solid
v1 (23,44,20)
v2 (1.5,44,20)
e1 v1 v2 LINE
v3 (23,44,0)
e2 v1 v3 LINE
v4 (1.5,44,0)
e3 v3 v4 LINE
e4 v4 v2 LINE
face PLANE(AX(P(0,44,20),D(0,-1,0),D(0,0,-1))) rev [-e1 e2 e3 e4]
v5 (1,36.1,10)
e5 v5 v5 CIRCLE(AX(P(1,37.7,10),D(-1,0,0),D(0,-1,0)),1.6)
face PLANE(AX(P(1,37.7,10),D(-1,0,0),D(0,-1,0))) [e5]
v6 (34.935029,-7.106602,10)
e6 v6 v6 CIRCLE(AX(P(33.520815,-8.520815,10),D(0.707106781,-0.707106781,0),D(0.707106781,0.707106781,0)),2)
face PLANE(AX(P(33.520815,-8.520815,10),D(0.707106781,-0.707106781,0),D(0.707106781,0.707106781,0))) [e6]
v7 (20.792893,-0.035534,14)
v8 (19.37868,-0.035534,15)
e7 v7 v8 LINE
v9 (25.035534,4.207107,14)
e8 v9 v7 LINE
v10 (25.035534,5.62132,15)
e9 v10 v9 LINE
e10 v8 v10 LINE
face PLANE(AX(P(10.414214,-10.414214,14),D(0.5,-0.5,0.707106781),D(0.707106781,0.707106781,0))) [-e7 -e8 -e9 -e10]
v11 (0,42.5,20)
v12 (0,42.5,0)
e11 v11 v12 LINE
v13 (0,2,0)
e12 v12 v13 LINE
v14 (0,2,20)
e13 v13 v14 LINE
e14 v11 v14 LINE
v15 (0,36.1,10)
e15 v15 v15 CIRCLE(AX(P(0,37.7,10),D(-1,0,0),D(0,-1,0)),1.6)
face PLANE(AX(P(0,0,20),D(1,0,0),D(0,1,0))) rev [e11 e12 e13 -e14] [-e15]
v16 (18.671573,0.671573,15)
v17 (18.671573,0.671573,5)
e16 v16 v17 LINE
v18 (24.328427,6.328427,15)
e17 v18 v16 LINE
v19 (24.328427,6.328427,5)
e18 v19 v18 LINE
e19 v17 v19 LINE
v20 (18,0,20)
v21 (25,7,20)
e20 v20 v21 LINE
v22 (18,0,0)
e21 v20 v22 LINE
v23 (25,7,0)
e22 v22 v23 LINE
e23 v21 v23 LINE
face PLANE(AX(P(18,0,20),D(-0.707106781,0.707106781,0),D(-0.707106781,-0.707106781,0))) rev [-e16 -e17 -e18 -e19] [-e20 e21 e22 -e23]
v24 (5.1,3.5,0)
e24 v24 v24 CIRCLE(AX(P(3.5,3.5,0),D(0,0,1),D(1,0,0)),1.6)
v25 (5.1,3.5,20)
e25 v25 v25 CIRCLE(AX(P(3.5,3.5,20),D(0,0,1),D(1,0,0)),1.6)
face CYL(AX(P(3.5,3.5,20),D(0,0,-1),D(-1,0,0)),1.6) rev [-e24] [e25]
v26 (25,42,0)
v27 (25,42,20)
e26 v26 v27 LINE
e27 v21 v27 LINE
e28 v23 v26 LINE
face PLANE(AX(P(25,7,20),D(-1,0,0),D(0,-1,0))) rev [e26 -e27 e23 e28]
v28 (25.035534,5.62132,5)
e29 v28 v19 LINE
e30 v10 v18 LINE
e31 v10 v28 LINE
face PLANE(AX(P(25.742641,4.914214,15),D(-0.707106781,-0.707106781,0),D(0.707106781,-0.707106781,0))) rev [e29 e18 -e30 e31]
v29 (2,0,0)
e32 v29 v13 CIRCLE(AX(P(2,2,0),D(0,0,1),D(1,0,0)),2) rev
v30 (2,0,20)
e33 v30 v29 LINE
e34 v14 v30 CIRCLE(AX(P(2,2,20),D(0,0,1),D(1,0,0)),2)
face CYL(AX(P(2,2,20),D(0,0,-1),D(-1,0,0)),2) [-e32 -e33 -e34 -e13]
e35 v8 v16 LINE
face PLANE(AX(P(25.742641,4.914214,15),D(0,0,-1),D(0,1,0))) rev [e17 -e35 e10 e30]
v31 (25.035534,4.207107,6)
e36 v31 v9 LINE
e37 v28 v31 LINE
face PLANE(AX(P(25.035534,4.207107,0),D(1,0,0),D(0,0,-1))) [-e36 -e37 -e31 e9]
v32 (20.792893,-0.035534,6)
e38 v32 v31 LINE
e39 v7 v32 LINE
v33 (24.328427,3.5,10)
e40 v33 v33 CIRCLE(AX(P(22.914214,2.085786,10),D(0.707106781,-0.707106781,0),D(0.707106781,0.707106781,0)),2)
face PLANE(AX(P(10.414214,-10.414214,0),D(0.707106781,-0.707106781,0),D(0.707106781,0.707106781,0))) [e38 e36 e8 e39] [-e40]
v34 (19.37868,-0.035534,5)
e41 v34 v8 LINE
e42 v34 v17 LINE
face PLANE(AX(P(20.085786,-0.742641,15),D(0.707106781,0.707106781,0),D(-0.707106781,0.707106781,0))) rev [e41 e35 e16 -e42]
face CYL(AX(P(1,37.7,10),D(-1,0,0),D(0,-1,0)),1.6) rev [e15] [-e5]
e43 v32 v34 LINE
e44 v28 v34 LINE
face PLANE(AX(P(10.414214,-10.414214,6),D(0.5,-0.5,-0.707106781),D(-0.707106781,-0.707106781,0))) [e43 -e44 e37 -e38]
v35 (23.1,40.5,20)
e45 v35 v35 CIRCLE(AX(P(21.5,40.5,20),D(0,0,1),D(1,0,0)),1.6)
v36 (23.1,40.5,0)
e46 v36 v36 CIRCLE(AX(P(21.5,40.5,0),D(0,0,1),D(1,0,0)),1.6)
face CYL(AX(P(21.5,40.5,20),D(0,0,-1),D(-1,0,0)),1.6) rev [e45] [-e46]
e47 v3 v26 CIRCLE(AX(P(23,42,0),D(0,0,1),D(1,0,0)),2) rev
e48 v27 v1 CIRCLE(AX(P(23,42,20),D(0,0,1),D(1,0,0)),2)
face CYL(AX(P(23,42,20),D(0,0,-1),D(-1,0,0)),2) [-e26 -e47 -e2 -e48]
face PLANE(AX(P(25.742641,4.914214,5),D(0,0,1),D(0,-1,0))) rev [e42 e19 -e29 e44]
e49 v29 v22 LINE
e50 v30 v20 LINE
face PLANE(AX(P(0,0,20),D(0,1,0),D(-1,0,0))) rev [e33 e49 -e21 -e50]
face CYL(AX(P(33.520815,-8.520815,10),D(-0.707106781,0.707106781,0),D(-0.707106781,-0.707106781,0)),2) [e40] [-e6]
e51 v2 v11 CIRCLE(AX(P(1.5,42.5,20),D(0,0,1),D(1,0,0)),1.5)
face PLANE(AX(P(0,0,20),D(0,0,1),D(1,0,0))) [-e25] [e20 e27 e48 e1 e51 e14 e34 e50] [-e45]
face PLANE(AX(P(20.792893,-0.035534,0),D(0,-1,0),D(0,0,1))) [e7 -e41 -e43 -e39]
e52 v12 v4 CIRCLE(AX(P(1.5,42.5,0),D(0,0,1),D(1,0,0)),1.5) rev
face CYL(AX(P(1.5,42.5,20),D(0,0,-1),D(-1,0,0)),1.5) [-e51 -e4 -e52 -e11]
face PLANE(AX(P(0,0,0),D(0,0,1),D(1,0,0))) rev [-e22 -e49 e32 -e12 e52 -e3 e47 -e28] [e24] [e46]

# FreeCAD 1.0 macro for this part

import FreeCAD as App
import Part
import Sketcher
from FreeCAD import Vector
Q = App.Units.Quantity


def edges_at(feature, points):
    """Names of the edges that pass closest to the given points."""
    edges = feature.Shape.Edges
    near = lambda p: min(range(len(edges)), key=lambda i: edges[i].distToShape(Part.Vertex(*p))[0])
    return sorted({f"Edge{near(p) + 1}" for p in points})

doc = App.newDocument("Part")
params = doc.addObject("Spreadsheet::Sheet", "Params")
for row, (alias, value) in enumerate([
    ("sketch1_diameter", "3.2 mm"),
    ("sketch1_width", "18 mm"),
    ("sketch1_width2", "25 mm"),
    ("sketch1_height", "44 mm"),
    ("sketch1_height2", "37 mm"),
    ("pad1_length", "20 mm"),
    ("sketch2_diameter", "3.2 mm"),
    ("pocket1_length", "1 mm"),
    ("fillet_radius", "1.5 mm"),
    ("fillet2_radius", "2 mm"),
    ("sketch3_width", "10 mm"),
    ("sketch3_height", "8 mm"),
    ("pad2_length", "2 mm"),
    ("chamfer_size", "1 mm"),
    ("sketch4_diameter", "4 mm"),
    ("pad3_length", "15 mm"),
], start=1):
    params.set(f"A{row}", alias)
    params.set(f"B{row}", "=" + value)
    params.setAlias(f"B{row}", alias)

body = doc.addObject("PartDesign::Body", "Body")

sketch1 = body.newObject("Sketcher::SketchObject", "Sketch")
sketch1.AttachmentSupport = (doc.getObject("XY_Plane"), [""])
sketch1.MapMode = "FlatFace"
sketch1.addGeometry(Part.LineSegment(Vector(0, 44, 0), Vector(0, 0, 0)), False)
sketch1.addGeometry(Part.LineSegment(Vector(0, 0, 0), Vector(18, 0, 0)), False)
sketch1.addGeometry(Part.LineSegment(Vector(18, 0, 0), Vector(25, 7, 0)), False)
sketch1.addGeometry(Part.LineSegment(Vector(25, 7, 0), Vector(25, 44, 0)), False)
sketch1.addGeometry(Part.LineSegment(Vector(25, 44, 0), Vector(0, 44, 0)), False)
sketch1.addGeometry(Part.Circle(Vector(3.5, 3.5, 0), Vector(0, 0, 1), 1.6), False)
sketch1.addGeometry(Part.Circle(Vector(21.5, 40.5, 0), Vector(0, 0, 1), 1.6), False)
sketch1.addConstraint(Sketcher.Constraint("Coincident", 0, 2, 1, 1))
sketch1.addConstraint(Sketcher.Constraint("Coincident", 1, 2, 2, 1))
sketch1.addConstraint(Sketcher.Constraint("Coincident", 2, 2, 3, 1))
sketch1.addConstraint(Sketcher.Constraint("Coincident", 3, 2, 4, 1))
sketch1.addConstraint(Sketcher.Constraint("Coincident", 4, 2, 0, 1))
sketch1.addConstraint(Sketcher.Constraint("Vertical", 0))
sketch1.addConstraint(Sketcher.Constraint("Horizontal", 1))
sketch1.addConstraint(Sketcher.Constraint("Vertical", 3))
sketch1.addConstraint(Sketcher.Constraint("Horizontal", 4))
sketch1.addConstraint(Sketcher.Constraint("Coincident", 0, 2, -1, 1))
sketch1.addConstraint(Sketcher.Constraint("Equal", 5, 6))
sketch1.addConstraint(Sketcher.Constraint("Diameter", 5, Q("3.2 mm")))
sketch1.addConstraint(Sketcher.Constraint("DistanceX", 1, 1, 1, 2, Q("18 mm")))
sketch1.addConstraint(Sketcher.Constraint("DistanceX", 4, 2, 4, 1, Q("25 mm")))
sketch1.addConstraint(Sketcher.Constraint("DistanceY", 0, 2, 0, 1, Q("44 mm")))
sketch1.addConstraint(Sketcher.Constraint("DistanceY", 3, 1, 3, 2, Q("37 mm")))
sketch1.addConstraint(Sketcher.Constraint("DistanceX", 5, 3, 6, 3, Q("18 mm")))
sketch1.addConstraint(Sketcher.Constraint("DistanceY", 5, 3, 6, 3, Q("37 mm")))
sketch1.addConstraint(Sketcher.Constraint("DistanceX", -1, 1, 5, 3, Q("3.5 mm")))
sketch1.addConstraint(Sketcher.Constraint("DistanceY", -1, 1, 5, 3, Q("3.5 mm")))
sketch1.setExpression("Constraints[11]", "Params.sketch1_diameter")
sketch1.setExpression("Constraints[12]", "Params.sketch1_width")
sketch1.setExpression("Constraints[13]", "Params.sketch1_width2")
sketch1.setExpression("Constraints[14]", "Params.sketch1_height")
sketch1.setExpression("Constraints[15]", "Params.sketch1_height2")
pad1 = body.newObject("PartDesign::Pad", "Pad")
pad1.Profile = sketch1
pad1.setExpression("Length", "Params.pad1_length")

sketch2 = body.newObject("Sketcher::SketchObject", "Sketch001")
sketch2.AttachmentSupport = (doc.getObject("YZ_Plane"), [""])
sketch2.MapMode = "FlatFace"
sketch2.addGeometry(Part.Circle(Vector(37.7, 10, 0), Vector(0, 0, 1), 1.6), False)
sketch2.addConstraint(Sketcher.Constraint("Diameter", 0, Q("3.2 mm")))
sketch2.addConstraint(Sketcher.Constraint("DistanceY", -1, 1, 0, 3, Q("10 mm")))
sketch2.addConstraint(Sketcher.Constraint("DistanceX", -1, 1, 0, 3, Q("37.7 mm")))
sketch2.setExpression("Constraints[0]", "Params.sketch2_diameter")
pocket1 = body.newObject("PartDesign::Pocket", "Pocket")
pocket1.Profile = sketch2
pocket1.setExpression("Length", "Params.pocket1_length")
pocket1.Reversed = True
doc.recompute()

fillet = body.newObject("PartDesign::Fillet", "Fillet")
fillet.Base = (pocket1, edges_at(pocket1, [(0, 44, 10)]))
fillet.setExpression("Radius", "Params.fillet_radius")
doc.recompute()

fillet2 = body.newObject("PartDesign::Fillet", "Fillet001")
fillet2.Base = (fillet, edges_at(fillet, [(0, 0, 10), (25, 44, 10)]))
fillet2.setExpression("Radius", "Params.fillet2_radius")

sketch3 = body.newObject("Sketcher::SketchObject", "Sketch002")
sketch3.Placement = App.Placement(Vector(9, -9, 0), App.Rotation(Vector(0, 0, -1), Vector(0.707106781, 0.707106781, 0), Vector(0.707106781, -0.707106781, 0), "ZXY"))
sketch3.addGeometry(Part.LineSegment(Vector(-15, 21.67767, 0), Vector(-15, 13.67767, 0)), False)
sketch3.addGeometry(Part.LineSegment(Vector(-15, 13.67767, 0), Vector(-5, 13.67767, 0)), False)
sketch3.addGeometry(Part.LineSegment(Vector(-5, 13.67767, 0), Vector(-5, 21.67767, 0)), False)
sketch3.addGeometry(Part.LineSegment(Vector(-5, 21.67767, 0), Vector(-15, 21.67767, 0)), False)
sketch3.addConstraint(Sketcher.Constraint("Coincident", 0, 2, 1, 1))
sketch3.addConstraint(Sketcher.Constraint("Coincident", 1, 2, 2, 1))
sketch3.addConstraint(Sketcher.Constraint("Coincident", 2, 2, 3, 1))
sketch3.addConstraint(Sketcher.Constraint("Coincident", 3, 2, 0, 1))
sketch3.addConstraint(Sketcher.Constraint("Vertical", 0))
sketch3.addConstraint(Sketcher.Constraint("Horizontal", 1))
sketch3.addConstraint(Sketcher.Constraint("Vertical", 2))
sketch3.addConstraint(Sketcher.Constraint("Horizontal", 3))
sketch3.addConstraint(Sketcher.Constraint("DistanceX", 1, 1, 1, 2, Q("10 mm")))
sketch3.addConstraint(Sketcher.Constraint("DistanceY", 0, 2, 0, 1, Q("8 mm")))
sketch3.addConstraint(Sketcher.Constraint("DistanceX", 0, 2, -1, 1, Q("15 mm")))
sketch3.addConstraint(Sketcher.Constraint("DistanceY", -1, 1, 0, 2, Q("13.67767 mm")))
sketch3.setExpression("Constraints[8]", "Params.sketch3_width")
sketch3.setExpression("Constraints[9]", "Params.sketch3_height")
pad2 = body.newObject("PartDesign::Pad", "Pad001")
pad2.Profile = sketch3
pad2.setExpression("Length", "Params.pad2_length")
doc.recompute()

chamfer = body.newObject("PartDesign::Chamfer", "Chamfer")
chamfer.Base = (pad2, edges_at(pad2, [
    (22.914, 2.086, 5),
    (25.743, 4.914, 10),
    (22.914, 2.086, 15),
    (20.086, -0.743, 10),
]))
chamfer.setExpression("Size", "Params.chamfer_size")

sketch4 = body.newObject("Sketcher::SketchObject", "Sketch003")
sketch4.Placement = App.Placement(Vector(10.414214, -10.414214, 0), App.Rotation(Vector(0, 0, -1), Vector(0.707106781, 0.707106781, 0), Vector(0.707106781, -0.707106781, 0), "ZXY"))
sketch4.addGeometry(Part.Circle(Vector(-10, 17.67767, 0), Vector(0, 0, 1), 2), False)
sketch4.addConstraint(Sketcher.Constraint("Diameter", 0, Q("4 mm")))
sketch4.addConstraint(Sketcher.Constraint("DistanceX", 0, 3, -1, 1, Q("10 mm")))
sketch4.addConstraint(Sketcher.Constraint("DistanceY", -1, 1, 0, 3, Q("17.67767 mm")))
sketch4.setExpression("Constraints[0]", "Params.sketch4_diameter")
pad3 = body.newObject("PartDesign::Pad", "Pad002")
pad3.Profile = sketch4
pad3.setExpression("Length", "Params.pad3_length")

doc.recompute()
